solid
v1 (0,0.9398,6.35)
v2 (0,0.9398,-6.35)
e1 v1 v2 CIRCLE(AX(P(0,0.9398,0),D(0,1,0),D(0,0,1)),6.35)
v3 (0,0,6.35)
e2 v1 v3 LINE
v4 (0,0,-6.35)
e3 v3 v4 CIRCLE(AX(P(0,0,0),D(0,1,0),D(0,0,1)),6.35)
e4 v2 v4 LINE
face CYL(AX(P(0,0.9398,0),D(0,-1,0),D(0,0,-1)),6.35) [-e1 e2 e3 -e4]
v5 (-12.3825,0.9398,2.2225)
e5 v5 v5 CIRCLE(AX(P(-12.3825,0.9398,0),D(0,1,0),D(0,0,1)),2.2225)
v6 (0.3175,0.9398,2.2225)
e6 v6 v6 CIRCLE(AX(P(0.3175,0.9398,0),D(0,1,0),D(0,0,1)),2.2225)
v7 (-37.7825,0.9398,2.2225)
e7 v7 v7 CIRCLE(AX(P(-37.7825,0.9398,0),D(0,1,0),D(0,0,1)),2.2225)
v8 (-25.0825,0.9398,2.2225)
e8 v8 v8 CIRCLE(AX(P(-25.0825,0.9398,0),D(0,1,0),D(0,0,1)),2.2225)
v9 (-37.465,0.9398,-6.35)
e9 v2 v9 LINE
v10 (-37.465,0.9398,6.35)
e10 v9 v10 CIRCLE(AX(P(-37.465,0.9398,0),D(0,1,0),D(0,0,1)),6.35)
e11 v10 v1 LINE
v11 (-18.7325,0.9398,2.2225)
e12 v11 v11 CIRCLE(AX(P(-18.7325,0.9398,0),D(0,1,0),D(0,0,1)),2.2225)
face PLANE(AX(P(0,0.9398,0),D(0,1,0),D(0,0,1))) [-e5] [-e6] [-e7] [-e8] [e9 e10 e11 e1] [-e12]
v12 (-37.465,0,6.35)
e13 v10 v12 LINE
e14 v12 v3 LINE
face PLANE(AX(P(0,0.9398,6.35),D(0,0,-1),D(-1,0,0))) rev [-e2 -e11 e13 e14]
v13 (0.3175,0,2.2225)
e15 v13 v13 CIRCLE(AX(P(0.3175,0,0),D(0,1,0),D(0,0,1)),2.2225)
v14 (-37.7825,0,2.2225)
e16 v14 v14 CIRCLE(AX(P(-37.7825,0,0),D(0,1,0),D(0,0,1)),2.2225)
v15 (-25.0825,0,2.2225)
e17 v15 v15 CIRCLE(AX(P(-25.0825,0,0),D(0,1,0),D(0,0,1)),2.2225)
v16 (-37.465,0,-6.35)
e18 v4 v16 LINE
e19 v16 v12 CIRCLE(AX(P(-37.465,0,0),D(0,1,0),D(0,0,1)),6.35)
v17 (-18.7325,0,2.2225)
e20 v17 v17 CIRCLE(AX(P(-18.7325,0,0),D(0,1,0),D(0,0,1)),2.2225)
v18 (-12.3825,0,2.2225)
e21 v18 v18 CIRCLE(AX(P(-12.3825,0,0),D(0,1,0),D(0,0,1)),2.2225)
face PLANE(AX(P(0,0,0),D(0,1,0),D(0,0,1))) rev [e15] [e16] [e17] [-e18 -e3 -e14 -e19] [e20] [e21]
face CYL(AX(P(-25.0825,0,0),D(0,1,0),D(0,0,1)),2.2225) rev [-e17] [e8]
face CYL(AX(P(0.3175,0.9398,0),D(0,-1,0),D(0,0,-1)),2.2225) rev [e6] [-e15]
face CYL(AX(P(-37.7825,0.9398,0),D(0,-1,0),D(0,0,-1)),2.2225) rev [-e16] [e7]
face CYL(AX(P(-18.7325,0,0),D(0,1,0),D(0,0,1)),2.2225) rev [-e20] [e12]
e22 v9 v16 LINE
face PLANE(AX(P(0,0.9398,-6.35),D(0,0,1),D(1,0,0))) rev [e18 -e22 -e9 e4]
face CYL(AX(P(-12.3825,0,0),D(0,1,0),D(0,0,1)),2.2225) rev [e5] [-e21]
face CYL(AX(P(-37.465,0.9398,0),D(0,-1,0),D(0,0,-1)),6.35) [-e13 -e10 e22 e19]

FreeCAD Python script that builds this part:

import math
import FreeCAD as App
import Part
import Sketcher
from FreeCAD import Vector
Q = App.Units.Quantity

doc = App.newDocument("Part")
params = doc.addObject("Spreadsheet::Sheet", "Params")
for row, (alias, value) in enumerate([
    ("sketch1_radius", "0.25 in"),
    ("sketch1_diameter", "0.175 in"),
    ("sketch1_width", "1.475 in"),
    ("pad1_length", "0.037 in"),
    ("sketch2_diameter", "0.175 in"),
    ("linearpattern_pitch", "0.25 in"),
], start=1):
    params.set(f"A{row}", alias)
    params.set(f"B{row}", "=" + value)
    params.setAlias(f"B{row}", alias)

body = doc.addObject("PartDesign::Body", "Body")

# Sketch on XZ plane
sketch1 = body.newObject("Sketcher::SketchObject", "Sketch")
sketch1.AttachmentSupport = (doc.getObject("XZ_Plane"), [""])
sketch1.MapMode = "FlatFace"
sketch1.addGeometry([
    Part.LineSegment(Vector(-37.5, 6.3, 0), Vector(0, 6.3, 0)),  # 0
    Part.ArcOfCircle(Part.Circle(Vector(0, 0, 0), Vector(0, 0, 1), 6.3), math.radians(-90), math.radians(90)),  # 1
    Part.LineSegment(Vector(0, -6.3, 0), Vector(-37.5, -6.3, 0)),  # 2
    Part.ArcOfCircle(Part.Circle(Vector(-37.5, 0, 0), Vector(0, 0, 1), 6.3), math.radians(90), math.radians(270)),  # 3
    Part.Circle(Vector(0.3, 0, 0), Vector(0, 0, 1), 2.2),  # 4
    Part.Circle(Vector(-37.8, 0, 0), Vector(0, 0, 1), 2.2),  # 5
], False)
sketch1.addConstraint([
    Sketcher.Constraint("Tangent", 0, 2, 1, 2),
    Sketcher.Constraint("Tangent", 1, 1, 2, 1),
    Sketcher.Constraint("Tangent", 2, 2, 3, 2),
    Sketcher.Constraint("Tangent", 3, 1, 0, 1),
    Sketcher.Constraint("Horizontal", 0),
    Sketcher.Constraint("Horizontal", 2),
    Sketcher.Constraint("Coincident", 1, 3, -1, 1),
    Sketcher.Constraint("Equal", 4, 5),
    Sketcher.Constraint("PointOnObject", 4, 3, -1),
    Sketcher.Constraint("PointOnObject", 5, 3, -1),
    Sketcher.Constraint("Radius", 1, Q("0.25 in")),
    Sketcher.Constraint("Diameter", 4, Q("0.175 in")),
    Sketcher.Constraint("DistanceX", 5, 3, 4, 3, Q("1.5 in")),
    Sketcher.Constraint("DistanceX", 0, 1, 0, 2, Q("1.475 in")),
    Sketcher.Constraint("DistanceX", -1, 1, 4, 3, Q("0.0125 in")),
])
sketch1.setExpression("Constraints[10]", "Params.sketch1_radius")
sketch1.setExpression("Constraints[11]", "Params.sketch1_diameter")
sketch1.setExpression("Constraints[13]", "Params.sketch1_width")
pad1 = body.newObject("PartDesign::Pad", "Pad")
pad1.Profile = sketch1
pad1.setExpression("Length", "Params.pad1_length")
pad1.Reversed = True

# Sketch on XZ plane
sketch2 = body.newObject("Sketcher::SketchObject", "Sketch001")
sketch2.AttachmentSupport = (doc.getObject("XZ_Plane"), [""])
sketch2.MapMode = "FlatFace"
sketch2.AttachmentOffset = App.Placement(Vector(0, 0, -0.037 * 25.4), App.Rotation())
sketch2.addGeometry(Part.Circle(Vector(-25.1, 0, 0), Vector(0, 0, 1), 2.2), False)
sketch2.addConstraint([
    Sketcher.Constraint("PointOnObject", 0, 3, -1),
    Sketcher.Constraint("Diameter", 0, Q("0.175 in")),
    Sketcher.Constraint("DistanceX", 0, 3, -1, 1, Q("0.9875 in")),
])
sketch2.setExpression("Constraints[1]", "Params.sketch2_diameter")
pocket1 = body.newObject("PartDesign::Pocket", "Pocket")
pocket1.Profile = sketch2
pocket1.Type = "ThroughAll"
pocket1.Reversed = True
doc.recompute()

linearpattern = body.newObject("PartDesign::LinearPattern", "LinearPattern")
linearpattern.Originals = [pocket1]
linearpattern.Direction = (doc.getObject("X_Axis"), [""])
linearpattern.Mode = "offset"
linearpattern.setExpression("Offset", "Params.linearpattern_pitch")
linearpattern.Occurrences = 3
body.Tip = linearpattern

doc.recompute()
